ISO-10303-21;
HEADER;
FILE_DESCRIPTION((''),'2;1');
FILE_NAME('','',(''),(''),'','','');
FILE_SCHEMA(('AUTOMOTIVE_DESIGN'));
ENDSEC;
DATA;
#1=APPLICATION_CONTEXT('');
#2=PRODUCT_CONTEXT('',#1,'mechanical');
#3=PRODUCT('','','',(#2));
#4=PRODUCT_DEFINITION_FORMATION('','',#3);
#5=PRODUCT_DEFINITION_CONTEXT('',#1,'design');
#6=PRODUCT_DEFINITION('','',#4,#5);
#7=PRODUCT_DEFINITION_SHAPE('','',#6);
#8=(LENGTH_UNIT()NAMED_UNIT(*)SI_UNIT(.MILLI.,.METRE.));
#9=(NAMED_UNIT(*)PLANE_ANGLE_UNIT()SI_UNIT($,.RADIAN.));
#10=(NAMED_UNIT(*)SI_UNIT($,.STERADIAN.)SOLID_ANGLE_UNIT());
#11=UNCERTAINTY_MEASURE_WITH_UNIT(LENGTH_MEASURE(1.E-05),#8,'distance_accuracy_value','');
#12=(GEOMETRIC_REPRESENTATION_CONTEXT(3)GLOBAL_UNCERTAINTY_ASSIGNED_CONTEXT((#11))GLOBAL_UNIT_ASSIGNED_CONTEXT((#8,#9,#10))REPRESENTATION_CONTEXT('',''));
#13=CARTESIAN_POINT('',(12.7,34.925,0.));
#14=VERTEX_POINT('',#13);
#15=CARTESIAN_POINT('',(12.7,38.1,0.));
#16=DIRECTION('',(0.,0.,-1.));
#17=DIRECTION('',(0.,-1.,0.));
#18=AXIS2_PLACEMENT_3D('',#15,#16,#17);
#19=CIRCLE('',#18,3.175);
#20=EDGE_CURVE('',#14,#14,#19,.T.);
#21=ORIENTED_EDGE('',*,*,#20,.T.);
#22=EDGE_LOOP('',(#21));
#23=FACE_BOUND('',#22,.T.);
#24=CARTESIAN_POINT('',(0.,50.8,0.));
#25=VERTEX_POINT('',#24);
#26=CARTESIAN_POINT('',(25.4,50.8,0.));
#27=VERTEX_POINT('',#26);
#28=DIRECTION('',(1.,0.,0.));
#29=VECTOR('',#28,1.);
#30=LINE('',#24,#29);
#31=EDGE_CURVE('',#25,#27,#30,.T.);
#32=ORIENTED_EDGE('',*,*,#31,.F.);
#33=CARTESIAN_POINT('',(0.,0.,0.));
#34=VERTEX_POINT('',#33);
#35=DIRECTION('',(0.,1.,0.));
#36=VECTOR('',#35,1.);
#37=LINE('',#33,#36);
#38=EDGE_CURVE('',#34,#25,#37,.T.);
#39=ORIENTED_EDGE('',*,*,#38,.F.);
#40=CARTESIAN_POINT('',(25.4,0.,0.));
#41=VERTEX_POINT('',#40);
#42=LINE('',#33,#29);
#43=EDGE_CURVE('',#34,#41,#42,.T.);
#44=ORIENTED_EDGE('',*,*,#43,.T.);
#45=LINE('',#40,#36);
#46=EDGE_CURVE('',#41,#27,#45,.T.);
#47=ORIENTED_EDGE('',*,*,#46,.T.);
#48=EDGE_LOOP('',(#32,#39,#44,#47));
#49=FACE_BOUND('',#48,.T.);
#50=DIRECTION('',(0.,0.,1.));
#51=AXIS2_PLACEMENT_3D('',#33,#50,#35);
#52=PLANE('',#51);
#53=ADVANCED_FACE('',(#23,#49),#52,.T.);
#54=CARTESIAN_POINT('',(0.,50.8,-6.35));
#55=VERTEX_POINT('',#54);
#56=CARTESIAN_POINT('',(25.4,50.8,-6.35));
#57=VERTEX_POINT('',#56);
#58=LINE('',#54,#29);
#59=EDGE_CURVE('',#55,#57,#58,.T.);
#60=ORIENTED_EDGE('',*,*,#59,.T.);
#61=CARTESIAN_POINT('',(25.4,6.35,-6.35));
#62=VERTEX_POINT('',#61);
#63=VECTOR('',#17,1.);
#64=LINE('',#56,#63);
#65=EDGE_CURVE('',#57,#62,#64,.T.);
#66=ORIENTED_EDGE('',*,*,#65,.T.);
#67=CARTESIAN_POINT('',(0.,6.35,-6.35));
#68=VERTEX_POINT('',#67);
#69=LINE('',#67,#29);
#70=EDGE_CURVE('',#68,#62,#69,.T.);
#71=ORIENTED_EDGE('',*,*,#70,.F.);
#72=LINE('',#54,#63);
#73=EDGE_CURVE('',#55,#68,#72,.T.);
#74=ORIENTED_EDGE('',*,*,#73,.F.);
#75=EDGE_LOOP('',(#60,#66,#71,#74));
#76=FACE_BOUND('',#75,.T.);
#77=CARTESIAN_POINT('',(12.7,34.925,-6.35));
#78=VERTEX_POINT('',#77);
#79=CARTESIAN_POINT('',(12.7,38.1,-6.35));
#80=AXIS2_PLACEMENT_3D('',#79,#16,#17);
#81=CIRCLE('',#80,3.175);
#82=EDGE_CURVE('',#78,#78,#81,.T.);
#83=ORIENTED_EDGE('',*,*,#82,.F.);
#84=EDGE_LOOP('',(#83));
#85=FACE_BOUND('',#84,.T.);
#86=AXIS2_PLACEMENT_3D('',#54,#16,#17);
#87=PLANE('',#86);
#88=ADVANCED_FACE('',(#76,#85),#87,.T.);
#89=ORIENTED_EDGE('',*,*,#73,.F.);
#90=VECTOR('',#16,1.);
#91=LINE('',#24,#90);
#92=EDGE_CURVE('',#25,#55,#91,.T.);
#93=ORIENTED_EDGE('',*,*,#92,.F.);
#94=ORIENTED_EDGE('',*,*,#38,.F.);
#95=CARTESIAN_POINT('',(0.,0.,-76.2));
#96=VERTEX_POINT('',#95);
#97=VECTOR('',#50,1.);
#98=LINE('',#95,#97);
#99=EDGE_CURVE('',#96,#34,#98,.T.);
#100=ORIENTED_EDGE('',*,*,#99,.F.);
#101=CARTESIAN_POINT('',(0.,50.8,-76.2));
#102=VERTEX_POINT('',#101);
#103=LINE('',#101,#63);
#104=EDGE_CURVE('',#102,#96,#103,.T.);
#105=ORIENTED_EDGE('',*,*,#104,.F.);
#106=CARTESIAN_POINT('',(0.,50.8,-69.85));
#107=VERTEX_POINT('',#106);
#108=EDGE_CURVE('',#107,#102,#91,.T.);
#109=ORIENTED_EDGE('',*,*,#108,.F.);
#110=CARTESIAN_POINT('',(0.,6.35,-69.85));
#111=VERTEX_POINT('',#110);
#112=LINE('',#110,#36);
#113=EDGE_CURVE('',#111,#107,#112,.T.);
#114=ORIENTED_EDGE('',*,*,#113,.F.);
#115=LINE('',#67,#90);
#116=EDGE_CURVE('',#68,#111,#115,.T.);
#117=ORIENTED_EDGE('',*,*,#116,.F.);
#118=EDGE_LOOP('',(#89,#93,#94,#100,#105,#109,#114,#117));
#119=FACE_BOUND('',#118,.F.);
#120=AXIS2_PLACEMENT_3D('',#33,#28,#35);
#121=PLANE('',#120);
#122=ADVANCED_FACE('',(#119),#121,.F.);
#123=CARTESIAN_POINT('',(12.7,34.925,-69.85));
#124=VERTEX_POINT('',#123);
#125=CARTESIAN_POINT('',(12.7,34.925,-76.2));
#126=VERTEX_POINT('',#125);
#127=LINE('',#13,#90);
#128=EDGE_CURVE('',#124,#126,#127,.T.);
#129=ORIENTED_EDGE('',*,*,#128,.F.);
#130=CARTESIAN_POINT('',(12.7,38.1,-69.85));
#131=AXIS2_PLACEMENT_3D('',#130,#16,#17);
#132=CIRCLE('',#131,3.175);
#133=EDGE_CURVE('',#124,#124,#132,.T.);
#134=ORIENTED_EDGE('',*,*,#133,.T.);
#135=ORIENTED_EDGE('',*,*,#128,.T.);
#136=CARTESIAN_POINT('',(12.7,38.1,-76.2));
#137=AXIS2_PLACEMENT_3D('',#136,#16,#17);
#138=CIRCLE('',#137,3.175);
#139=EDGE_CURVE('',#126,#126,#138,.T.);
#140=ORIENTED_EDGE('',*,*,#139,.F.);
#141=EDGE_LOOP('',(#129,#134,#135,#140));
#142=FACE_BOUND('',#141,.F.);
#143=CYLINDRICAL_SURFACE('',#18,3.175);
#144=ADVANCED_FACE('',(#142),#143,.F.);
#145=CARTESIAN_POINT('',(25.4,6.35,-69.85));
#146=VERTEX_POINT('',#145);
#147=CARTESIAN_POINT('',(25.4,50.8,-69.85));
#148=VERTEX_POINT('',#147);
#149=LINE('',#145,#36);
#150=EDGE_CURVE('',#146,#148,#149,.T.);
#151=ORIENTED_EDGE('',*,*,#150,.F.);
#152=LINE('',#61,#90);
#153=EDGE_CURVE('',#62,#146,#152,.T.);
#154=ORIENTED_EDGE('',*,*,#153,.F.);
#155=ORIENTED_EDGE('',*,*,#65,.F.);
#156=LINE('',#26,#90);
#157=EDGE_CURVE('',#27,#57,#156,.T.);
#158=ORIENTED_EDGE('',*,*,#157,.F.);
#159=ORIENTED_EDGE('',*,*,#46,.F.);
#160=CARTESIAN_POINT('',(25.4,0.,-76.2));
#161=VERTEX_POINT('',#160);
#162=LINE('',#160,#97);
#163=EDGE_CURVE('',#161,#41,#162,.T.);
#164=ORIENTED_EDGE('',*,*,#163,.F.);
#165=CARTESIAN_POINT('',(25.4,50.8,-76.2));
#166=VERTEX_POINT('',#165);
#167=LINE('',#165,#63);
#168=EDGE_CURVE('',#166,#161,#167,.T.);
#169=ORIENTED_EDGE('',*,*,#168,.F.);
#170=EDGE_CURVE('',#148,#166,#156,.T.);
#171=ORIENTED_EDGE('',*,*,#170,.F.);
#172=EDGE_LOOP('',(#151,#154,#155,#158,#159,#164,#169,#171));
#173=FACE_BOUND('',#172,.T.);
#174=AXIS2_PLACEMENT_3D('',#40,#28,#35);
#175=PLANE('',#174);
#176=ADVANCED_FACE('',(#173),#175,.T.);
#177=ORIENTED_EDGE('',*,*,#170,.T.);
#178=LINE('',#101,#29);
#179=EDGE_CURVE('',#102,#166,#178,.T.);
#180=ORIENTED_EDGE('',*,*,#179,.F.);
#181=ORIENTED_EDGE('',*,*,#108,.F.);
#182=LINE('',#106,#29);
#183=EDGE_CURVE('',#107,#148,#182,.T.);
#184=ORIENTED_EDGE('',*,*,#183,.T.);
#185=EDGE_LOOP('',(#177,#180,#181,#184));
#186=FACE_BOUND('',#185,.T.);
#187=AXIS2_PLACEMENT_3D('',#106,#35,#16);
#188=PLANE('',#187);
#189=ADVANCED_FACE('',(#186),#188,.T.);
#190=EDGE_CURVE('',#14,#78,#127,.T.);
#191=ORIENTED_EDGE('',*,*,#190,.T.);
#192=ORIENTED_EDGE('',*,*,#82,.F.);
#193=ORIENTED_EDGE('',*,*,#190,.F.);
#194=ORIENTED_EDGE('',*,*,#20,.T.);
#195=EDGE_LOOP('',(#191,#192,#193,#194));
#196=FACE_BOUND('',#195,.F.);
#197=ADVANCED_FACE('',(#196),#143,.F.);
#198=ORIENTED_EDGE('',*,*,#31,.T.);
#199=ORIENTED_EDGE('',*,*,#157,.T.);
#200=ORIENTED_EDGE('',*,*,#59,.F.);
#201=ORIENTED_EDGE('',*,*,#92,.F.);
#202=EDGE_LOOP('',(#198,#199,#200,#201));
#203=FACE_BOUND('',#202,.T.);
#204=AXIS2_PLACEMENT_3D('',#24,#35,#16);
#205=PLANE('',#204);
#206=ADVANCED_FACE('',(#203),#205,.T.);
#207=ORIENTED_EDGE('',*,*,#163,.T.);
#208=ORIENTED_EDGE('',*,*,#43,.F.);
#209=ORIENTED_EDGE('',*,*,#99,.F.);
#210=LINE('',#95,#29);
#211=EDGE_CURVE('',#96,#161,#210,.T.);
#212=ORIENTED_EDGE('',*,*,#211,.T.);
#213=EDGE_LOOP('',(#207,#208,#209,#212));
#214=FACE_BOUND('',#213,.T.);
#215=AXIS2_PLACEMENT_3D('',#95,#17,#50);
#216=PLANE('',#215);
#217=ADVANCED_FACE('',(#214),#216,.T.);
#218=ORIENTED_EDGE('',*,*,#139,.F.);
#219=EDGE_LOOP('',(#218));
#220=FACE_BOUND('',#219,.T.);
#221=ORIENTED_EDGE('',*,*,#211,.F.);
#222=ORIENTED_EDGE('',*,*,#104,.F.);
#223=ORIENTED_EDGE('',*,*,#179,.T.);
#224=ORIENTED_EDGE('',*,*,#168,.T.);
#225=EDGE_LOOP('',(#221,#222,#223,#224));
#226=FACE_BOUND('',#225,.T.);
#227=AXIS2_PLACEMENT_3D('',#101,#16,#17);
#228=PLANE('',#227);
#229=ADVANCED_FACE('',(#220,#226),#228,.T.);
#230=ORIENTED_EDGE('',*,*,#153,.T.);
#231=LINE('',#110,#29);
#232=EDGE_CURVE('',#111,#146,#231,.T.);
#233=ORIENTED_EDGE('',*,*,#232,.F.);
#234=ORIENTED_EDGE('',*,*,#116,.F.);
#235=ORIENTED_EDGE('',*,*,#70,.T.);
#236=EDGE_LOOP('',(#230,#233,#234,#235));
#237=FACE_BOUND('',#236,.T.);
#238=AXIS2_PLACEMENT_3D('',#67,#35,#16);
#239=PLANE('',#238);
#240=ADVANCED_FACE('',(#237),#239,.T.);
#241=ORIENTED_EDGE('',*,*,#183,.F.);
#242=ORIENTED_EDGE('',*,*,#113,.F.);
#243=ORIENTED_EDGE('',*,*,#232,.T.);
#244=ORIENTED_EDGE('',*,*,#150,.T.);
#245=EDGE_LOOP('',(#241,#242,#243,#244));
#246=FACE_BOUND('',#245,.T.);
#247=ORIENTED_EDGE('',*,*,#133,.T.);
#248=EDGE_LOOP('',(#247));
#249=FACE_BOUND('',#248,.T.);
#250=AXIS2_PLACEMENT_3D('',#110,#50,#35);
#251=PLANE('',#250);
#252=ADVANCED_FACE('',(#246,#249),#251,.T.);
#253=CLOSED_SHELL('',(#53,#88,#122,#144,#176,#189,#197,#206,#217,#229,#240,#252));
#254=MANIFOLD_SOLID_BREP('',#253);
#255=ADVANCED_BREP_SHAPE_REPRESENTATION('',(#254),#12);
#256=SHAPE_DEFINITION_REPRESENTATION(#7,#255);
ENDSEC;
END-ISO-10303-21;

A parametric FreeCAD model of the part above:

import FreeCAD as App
import Part
import Sketcher
from FreeCAD import Vector
Q = App.Units.Quantity


def add_polygon(sketch, points):
    """Adds a closed chain of lines whose ends are joined by coincident constraints."""
    first, n = sketch.GeometryCount, len(points)
    for a, b in zip(points, points[1:] + points[:1]):
        sketch.addGeometry(Part.LineSegment(App.Vector(*a, 0), App.Vector(*b, 0)), False)
    for i in range(n):
        sketch.addConstraint(Sketcher.Constraint("Coincident", first + i, 2, first + (i + 1) % n, 1))

doc = App.newDocument("Part")
body = doc.addObject("PartDesign::Body", "Body")

# Sketch on YZ plane
sketch1 = body.newObject("Sketcher::SketchObject", "Sketch")
sketch1.AttachmentSupport = (doc.getObject("YZ_Plane"), [""])
sketch1.MapMode = "FlatFace"
add_polygon(sketch1, [(51, 0), (0, 0), (0, -76), (51, -76), (51, -70), (6, -70), (6, -6), (51, -6)])  # lines 0-7
sketch1.addConstraint(Sketcher.Constraint("Horizontal", 0))
sketch1.addConstraint(Sketcher.Constraint("Vertical", 1))
sketch1.addConstraint(Sketcher.Constraint("Horizontal", 2))
sketch1.addConstraint(Sketcher.Constraint("Vertical", 3))
sketch1.addConstraint(Sketcher.Constraint("Horizontal", 4))
sketch1.addConstraint(Sketcher.Constraint("Vertical", 5))
sketch1.addConstraint(Sketcher.Constraint("Horizontal", 6))
sketch1.addConstraint(Sketcher.Constraint("Vertical", 7))
sketch1.addConstraint(Sketcher.Constraint("Coincident", 0, 2, -1, 1))
sketch1.addConstraint(Sketcher.Constraint("Vertical", 3, 2, 6, 2))
sketch1.addConstraint(Sketcher.Constraint("Equal", 3, 7))
sketch1.addConstraint(Sketcher.Constraint("DistanceX", 0, 2, 0, 1, Q("2 in")))
sketch1.addConstraint(Sketcher.Constraint("DistanceY", 1, 2, 1, 1, Q("3 in")))
sketch1.addConstraint(Sketcher.Constraint("DistanceY", 3, 1, 3, 2, Q("0.25 in")))
sketch1.addConstraint(Sketcher.Constraint("DistanceX", -1, 1, 4, 2, Q("0.25 in")))
pad1 = body.newObject("PartDesign::Pad", "Pad")
pad1.Profile = sketch1
pad1.Length = Q("1 in")

# Sketch on XY plane
sketch2 = body.newObject("Sketcher::SketchObject", "Sketch001")
sketch2.AttachmentSupport = (doc.getObject("XY_Plane"), [""])
sketch2.MapMode = "FlatFace"
sketch2.addGeometry(Part.Circle(Vector(12.7, 38.1, 0), Vector(0, 0, 1), 3.2), False)
sketch2.addConstraint(Sketcher.Constraint("Diameter", 0, Q("0.25 in")))
sketch2.addConstraint(Sketcher.Constraint("DistanceX", -1, 1, 0, 3, Q("0.5 in")))
sketch2.addConstraint(Sketcher.Constraint("DistanceY", -1, 1, 0, 3, Q("1.5 in")))
doc.recompute()
hole = body.newObject("PartDesign::Hole", "Hole")
hole.Profile = sketch2
hole.ThreadType = "None"
hole.Diameter = Q("0.25 in")
hole.DepthType = "ThroughAll"

doc.recompute()
